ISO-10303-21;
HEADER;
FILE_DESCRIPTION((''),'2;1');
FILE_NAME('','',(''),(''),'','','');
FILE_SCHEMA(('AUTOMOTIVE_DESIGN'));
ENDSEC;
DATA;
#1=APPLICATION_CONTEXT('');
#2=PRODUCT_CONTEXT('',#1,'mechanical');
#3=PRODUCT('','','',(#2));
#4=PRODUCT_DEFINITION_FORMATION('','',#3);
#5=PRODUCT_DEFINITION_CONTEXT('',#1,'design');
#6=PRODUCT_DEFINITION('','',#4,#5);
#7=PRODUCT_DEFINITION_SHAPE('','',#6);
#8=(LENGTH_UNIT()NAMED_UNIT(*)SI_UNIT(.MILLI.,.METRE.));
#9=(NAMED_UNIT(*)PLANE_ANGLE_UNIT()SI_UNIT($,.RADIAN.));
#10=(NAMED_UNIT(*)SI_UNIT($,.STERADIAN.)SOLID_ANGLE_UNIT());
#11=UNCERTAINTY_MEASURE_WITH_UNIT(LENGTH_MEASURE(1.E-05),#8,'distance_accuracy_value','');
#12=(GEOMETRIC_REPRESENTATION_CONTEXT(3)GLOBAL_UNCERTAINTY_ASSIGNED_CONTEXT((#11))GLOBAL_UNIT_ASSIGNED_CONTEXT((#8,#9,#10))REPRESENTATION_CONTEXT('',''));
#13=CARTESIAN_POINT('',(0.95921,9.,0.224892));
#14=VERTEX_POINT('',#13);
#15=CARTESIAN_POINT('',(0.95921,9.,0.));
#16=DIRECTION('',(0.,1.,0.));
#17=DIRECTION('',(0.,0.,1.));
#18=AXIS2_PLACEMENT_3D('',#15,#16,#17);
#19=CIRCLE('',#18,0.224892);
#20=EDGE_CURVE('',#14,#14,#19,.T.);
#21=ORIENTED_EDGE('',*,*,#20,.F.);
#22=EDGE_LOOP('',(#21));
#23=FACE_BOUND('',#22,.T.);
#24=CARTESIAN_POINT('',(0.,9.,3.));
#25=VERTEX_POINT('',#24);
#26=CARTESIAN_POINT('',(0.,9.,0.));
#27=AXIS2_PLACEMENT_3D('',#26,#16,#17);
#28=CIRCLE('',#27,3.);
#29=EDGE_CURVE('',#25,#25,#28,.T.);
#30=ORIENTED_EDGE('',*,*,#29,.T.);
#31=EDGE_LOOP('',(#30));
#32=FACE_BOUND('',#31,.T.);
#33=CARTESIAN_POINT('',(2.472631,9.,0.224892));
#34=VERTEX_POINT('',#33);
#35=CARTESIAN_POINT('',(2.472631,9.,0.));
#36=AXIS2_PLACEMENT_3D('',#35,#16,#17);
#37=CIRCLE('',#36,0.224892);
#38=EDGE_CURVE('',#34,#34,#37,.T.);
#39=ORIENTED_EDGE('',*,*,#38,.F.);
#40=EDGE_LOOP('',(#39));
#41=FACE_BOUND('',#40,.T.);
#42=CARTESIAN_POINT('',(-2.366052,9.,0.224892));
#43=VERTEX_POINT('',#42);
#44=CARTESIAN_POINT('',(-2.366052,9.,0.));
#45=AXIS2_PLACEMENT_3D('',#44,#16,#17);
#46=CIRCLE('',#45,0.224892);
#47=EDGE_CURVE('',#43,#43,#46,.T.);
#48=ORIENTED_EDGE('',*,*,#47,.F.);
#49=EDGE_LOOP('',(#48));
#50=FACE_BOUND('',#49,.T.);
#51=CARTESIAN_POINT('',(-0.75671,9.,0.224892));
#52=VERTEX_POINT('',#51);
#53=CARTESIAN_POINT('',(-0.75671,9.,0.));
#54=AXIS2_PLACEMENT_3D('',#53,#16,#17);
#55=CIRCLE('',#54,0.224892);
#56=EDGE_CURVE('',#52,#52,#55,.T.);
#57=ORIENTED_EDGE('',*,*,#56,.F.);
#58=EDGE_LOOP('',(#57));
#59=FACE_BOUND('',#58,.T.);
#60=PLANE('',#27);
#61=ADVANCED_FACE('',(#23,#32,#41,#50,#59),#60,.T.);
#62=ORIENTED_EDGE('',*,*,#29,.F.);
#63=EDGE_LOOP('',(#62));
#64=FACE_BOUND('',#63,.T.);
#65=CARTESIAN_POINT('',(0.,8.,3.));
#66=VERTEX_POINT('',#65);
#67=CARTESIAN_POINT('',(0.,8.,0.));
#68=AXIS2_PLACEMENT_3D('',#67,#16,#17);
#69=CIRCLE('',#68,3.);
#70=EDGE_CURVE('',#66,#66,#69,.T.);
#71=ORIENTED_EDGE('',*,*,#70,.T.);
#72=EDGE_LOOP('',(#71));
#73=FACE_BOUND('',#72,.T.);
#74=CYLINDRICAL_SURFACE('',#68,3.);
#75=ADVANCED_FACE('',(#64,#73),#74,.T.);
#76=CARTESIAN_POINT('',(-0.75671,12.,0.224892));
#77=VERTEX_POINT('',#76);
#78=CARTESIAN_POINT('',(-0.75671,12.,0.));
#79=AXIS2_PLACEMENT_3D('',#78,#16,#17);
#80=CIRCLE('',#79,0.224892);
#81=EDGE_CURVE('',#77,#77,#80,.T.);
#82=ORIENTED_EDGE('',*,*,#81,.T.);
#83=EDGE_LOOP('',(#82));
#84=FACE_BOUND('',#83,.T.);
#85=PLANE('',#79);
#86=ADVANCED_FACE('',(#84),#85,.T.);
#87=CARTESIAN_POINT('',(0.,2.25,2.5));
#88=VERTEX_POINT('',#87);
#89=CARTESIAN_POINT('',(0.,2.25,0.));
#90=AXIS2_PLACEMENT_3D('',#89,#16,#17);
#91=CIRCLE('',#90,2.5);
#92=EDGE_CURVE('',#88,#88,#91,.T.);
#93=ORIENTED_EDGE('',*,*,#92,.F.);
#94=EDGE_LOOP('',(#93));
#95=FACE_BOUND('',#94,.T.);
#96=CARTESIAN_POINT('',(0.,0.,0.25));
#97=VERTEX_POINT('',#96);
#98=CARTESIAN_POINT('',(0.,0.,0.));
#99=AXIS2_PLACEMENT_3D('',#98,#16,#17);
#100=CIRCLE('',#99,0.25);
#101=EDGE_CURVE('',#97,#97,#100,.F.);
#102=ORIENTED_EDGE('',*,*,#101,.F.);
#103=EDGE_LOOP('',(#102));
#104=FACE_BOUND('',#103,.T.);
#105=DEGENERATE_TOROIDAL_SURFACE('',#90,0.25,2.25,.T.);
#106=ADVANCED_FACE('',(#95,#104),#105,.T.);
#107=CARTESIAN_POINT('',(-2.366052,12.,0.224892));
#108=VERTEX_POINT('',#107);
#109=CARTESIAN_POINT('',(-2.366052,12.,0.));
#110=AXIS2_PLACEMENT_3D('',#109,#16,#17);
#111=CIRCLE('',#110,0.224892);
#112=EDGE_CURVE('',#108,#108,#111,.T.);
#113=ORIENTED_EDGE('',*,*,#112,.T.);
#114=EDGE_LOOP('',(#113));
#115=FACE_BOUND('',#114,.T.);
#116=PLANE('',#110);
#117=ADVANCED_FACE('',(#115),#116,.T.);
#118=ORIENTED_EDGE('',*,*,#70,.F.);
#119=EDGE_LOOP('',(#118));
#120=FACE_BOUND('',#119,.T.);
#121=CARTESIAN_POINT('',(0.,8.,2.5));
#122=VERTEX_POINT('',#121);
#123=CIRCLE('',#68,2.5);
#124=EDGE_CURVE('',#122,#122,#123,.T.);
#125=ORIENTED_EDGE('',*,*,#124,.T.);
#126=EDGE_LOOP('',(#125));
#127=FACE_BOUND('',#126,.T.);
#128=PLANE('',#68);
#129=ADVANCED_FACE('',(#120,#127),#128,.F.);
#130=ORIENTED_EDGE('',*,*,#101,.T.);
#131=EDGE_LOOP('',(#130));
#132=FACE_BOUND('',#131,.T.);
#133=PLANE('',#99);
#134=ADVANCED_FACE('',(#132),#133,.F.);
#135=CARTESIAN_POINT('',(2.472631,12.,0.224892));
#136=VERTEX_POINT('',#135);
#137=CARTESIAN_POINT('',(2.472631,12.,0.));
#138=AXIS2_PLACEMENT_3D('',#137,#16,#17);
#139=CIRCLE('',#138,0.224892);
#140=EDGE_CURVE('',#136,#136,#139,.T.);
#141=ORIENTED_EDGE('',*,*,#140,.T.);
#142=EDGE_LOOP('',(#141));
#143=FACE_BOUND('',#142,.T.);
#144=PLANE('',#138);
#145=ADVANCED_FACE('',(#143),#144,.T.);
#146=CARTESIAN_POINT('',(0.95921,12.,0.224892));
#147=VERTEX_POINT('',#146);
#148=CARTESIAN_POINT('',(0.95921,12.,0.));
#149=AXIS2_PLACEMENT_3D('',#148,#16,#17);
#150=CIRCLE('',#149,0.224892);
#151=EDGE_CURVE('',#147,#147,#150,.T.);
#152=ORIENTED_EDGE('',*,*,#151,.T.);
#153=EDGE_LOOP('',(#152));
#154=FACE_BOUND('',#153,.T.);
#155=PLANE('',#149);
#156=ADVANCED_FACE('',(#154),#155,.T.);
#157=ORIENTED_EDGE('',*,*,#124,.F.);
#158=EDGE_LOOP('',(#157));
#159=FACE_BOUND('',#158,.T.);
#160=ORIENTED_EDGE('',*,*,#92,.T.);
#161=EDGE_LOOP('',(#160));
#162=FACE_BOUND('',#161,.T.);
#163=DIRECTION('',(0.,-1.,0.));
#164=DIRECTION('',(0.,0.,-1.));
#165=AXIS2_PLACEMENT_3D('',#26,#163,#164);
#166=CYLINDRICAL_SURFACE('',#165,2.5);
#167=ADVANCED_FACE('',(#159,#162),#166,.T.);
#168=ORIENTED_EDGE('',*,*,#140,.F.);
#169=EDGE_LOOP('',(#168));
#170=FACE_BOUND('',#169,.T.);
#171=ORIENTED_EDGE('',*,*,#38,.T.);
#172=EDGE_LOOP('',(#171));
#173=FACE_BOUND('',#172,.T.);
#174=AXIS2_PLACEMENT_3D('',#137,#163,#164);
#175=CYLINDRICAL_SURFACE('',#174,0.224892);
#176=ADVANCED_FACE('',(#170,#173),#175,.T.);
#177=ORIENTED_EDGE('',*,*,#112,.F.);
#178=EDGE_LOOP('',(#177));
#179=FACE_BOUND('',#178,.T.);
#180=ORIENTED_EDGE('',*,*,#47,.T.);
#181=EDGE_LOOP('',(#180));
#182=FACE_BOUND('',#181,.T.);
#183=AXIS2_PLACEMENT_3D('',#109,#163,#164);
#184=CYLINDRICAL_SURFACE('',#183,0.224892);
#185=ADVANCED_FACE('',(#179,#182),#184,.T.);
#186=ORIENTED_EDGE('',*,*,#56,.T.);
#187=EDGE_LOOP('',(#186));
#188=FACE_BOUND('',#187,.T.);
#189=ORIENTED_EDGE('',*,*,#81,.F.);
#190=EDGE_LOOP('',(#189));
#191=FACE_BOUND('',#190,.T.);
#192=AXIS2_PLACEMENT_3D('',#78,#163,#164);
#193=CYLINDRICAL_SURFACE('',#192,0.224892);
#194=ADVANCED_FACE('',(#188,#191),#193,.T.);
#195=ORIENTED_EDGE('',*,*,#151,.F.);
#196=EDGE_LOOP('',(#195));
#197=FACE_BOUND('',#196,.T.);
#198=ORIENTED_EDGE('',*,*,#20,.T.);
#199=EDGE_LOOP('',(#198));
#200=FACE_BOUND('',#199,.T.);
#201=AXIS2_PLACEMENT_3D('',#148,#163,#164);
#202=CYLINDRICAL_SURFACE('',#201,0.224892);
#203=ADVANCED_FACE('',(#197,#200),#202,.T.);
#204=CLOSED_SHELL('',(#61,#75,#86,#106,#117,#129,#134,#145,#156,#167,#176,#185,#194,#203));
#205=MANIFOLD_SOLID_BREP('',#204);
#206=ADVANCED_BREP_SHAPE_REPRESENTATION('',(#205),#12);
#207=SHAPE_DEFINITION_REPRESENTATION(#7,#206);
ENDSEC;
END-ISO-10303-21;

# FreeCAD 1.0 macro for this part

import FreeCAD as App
import Part
import Sketcher
from FreeCAD import Vector
Q = App.Units.Quantity


def edges_at(feature, points):
    """Names of the edges that pass closest to the given points."""
    edges = feature.Shape.Edges
    near = lambda p: min(range(len(edges)), key=lambda i: edges[i].distToShape(Part.Vertex(*p))[0])
    return sorted({f"Edge{near(p) + 1}" for p in points})

doc = App.newDocument("Part")
body = doc.addObject("PartDesign::Body", "Body")

# Sketch on XZ plane
sketch1 = body.newObject("Sketcher::SketchObject", "Sketch")
sketch1.AttachmentSupport = (doc.getObject("XZ_Plane"), [""])
sketch1.MapMode = "FlatFace"
sketch1.addGeometry(Part.Circle(Vector(0, 0, 0), Vector(0, 0, 1), 2.5), False)
sketch1.addConstraint([
    Sketcher.Constraint("Coincident", 0, 3, -1, 1),
    Sketcher.Constraint("Diameter", 0, Q("5 mm")),
])
pad1 = body.newObject("PartDesign::Pad", "Pad")
pad1.Profile = sketch1
pad1.Length = 9
pad1.Reversed = True

# Sketch on XZ plane
sketch2 = body.newObject("Sketcher::SketchObject", "Sketch001")
sketch2.AttachmentSupport = (doc.getObject("XZ_Plane"), [""])
sketch2.MapMode = "FlatFace"
sketch2.AttachmentOffset = App.Placement(Vector(0, 0, -9), App.Rotation())
sketch2.addGeometry(Part.Circle(Vector(0, 0, 0), Vector(0, 0, 1), 3), False)
sketch2.addConstraint([
    Sketcher.Constraint("Coincident", 0, 3, -1, 1),
    Sketcher.Constraint("Diameter", 0, Q("6 mm")),
])
pad2 = body.newObject("PartDesign::Pad", "Pad001")
pad2.Profile = sketch2
pad2.Length = 1
doc.recompute()

fillet = body.newObject("PartDesign::Fillet", "Fillet")
fillet.Base = (pad2, edges_at(pad2, [(0, 0, -2.5)]))
fillet.Radius = 2.25

# Sketch on XZ plane
sketch3 = body.newObject("Sketcher::SketchObject", "Sketch002")
sketch3.AttachmentSupport = (doc.getObject("XZ_Plane"), [""])
sketch3.MapMode = "FlatFace"
sketch3.AttachmentOffset = App.Placement(Vector(0, 0, -9), App.Rotation())
sketch3.addGeometry([
    Part.Circle(Vector(-2.37, 0, 0), Vector(0, 0, 1), 0.22),
    Part.Circle(Vector(-0.76, 0, 0), Vector(0, 0, 1), 0.22),
    Part.Circle(Vector(0.96, 0, 0), Vector(0, 0, 1), 0.22),
    Part.Circle(Vector(2.47, 0, 0), Vector(0, 0, 1), 0.22),
], False)
sketch3.addConstraint([
    Sketcher.Constraint("Equal", 0, 1),
    Sketcher.Constraint("Equal", 1, 2),
    Sketcher.Constraint("Equal", 2, 3),
    Sketcher.Constraint("PointOnObject", 0, 3, -1),
    Sketcher.Constraint("PointOnObject", 1, 3, -1),
    Sketcher.Constraint("PointOnObject", 2, 3, -1),
    Sketcher.Constraint("PointOnObject", 3, 3, -1),
    Sketcher.Constraint("Diameter", 0, Q("0.449783 mm")),
    Sketcher.Constraint("DistanceX", 0, 3, -1, 1, Q("2.366052 mm")),
    Sketcher.Constraint("DistanceX", 1, 3, -1, 1, Q("0.75671 mm")),
    Sketcher.Constraint("DistanceX", -1, 1, 2, 3, Q("0.95921 mm")),
    Sketcher.Constraint("DistanceX", -1, 1, 3, 3, Q("2.472631 mm")),
])
pad3 = body.newObject("PartDesign::Pad", "Pad002")
pad3.Profile = sketch3
pad3.Length = 3
pad3.Reversed = True

doc.recompute()
